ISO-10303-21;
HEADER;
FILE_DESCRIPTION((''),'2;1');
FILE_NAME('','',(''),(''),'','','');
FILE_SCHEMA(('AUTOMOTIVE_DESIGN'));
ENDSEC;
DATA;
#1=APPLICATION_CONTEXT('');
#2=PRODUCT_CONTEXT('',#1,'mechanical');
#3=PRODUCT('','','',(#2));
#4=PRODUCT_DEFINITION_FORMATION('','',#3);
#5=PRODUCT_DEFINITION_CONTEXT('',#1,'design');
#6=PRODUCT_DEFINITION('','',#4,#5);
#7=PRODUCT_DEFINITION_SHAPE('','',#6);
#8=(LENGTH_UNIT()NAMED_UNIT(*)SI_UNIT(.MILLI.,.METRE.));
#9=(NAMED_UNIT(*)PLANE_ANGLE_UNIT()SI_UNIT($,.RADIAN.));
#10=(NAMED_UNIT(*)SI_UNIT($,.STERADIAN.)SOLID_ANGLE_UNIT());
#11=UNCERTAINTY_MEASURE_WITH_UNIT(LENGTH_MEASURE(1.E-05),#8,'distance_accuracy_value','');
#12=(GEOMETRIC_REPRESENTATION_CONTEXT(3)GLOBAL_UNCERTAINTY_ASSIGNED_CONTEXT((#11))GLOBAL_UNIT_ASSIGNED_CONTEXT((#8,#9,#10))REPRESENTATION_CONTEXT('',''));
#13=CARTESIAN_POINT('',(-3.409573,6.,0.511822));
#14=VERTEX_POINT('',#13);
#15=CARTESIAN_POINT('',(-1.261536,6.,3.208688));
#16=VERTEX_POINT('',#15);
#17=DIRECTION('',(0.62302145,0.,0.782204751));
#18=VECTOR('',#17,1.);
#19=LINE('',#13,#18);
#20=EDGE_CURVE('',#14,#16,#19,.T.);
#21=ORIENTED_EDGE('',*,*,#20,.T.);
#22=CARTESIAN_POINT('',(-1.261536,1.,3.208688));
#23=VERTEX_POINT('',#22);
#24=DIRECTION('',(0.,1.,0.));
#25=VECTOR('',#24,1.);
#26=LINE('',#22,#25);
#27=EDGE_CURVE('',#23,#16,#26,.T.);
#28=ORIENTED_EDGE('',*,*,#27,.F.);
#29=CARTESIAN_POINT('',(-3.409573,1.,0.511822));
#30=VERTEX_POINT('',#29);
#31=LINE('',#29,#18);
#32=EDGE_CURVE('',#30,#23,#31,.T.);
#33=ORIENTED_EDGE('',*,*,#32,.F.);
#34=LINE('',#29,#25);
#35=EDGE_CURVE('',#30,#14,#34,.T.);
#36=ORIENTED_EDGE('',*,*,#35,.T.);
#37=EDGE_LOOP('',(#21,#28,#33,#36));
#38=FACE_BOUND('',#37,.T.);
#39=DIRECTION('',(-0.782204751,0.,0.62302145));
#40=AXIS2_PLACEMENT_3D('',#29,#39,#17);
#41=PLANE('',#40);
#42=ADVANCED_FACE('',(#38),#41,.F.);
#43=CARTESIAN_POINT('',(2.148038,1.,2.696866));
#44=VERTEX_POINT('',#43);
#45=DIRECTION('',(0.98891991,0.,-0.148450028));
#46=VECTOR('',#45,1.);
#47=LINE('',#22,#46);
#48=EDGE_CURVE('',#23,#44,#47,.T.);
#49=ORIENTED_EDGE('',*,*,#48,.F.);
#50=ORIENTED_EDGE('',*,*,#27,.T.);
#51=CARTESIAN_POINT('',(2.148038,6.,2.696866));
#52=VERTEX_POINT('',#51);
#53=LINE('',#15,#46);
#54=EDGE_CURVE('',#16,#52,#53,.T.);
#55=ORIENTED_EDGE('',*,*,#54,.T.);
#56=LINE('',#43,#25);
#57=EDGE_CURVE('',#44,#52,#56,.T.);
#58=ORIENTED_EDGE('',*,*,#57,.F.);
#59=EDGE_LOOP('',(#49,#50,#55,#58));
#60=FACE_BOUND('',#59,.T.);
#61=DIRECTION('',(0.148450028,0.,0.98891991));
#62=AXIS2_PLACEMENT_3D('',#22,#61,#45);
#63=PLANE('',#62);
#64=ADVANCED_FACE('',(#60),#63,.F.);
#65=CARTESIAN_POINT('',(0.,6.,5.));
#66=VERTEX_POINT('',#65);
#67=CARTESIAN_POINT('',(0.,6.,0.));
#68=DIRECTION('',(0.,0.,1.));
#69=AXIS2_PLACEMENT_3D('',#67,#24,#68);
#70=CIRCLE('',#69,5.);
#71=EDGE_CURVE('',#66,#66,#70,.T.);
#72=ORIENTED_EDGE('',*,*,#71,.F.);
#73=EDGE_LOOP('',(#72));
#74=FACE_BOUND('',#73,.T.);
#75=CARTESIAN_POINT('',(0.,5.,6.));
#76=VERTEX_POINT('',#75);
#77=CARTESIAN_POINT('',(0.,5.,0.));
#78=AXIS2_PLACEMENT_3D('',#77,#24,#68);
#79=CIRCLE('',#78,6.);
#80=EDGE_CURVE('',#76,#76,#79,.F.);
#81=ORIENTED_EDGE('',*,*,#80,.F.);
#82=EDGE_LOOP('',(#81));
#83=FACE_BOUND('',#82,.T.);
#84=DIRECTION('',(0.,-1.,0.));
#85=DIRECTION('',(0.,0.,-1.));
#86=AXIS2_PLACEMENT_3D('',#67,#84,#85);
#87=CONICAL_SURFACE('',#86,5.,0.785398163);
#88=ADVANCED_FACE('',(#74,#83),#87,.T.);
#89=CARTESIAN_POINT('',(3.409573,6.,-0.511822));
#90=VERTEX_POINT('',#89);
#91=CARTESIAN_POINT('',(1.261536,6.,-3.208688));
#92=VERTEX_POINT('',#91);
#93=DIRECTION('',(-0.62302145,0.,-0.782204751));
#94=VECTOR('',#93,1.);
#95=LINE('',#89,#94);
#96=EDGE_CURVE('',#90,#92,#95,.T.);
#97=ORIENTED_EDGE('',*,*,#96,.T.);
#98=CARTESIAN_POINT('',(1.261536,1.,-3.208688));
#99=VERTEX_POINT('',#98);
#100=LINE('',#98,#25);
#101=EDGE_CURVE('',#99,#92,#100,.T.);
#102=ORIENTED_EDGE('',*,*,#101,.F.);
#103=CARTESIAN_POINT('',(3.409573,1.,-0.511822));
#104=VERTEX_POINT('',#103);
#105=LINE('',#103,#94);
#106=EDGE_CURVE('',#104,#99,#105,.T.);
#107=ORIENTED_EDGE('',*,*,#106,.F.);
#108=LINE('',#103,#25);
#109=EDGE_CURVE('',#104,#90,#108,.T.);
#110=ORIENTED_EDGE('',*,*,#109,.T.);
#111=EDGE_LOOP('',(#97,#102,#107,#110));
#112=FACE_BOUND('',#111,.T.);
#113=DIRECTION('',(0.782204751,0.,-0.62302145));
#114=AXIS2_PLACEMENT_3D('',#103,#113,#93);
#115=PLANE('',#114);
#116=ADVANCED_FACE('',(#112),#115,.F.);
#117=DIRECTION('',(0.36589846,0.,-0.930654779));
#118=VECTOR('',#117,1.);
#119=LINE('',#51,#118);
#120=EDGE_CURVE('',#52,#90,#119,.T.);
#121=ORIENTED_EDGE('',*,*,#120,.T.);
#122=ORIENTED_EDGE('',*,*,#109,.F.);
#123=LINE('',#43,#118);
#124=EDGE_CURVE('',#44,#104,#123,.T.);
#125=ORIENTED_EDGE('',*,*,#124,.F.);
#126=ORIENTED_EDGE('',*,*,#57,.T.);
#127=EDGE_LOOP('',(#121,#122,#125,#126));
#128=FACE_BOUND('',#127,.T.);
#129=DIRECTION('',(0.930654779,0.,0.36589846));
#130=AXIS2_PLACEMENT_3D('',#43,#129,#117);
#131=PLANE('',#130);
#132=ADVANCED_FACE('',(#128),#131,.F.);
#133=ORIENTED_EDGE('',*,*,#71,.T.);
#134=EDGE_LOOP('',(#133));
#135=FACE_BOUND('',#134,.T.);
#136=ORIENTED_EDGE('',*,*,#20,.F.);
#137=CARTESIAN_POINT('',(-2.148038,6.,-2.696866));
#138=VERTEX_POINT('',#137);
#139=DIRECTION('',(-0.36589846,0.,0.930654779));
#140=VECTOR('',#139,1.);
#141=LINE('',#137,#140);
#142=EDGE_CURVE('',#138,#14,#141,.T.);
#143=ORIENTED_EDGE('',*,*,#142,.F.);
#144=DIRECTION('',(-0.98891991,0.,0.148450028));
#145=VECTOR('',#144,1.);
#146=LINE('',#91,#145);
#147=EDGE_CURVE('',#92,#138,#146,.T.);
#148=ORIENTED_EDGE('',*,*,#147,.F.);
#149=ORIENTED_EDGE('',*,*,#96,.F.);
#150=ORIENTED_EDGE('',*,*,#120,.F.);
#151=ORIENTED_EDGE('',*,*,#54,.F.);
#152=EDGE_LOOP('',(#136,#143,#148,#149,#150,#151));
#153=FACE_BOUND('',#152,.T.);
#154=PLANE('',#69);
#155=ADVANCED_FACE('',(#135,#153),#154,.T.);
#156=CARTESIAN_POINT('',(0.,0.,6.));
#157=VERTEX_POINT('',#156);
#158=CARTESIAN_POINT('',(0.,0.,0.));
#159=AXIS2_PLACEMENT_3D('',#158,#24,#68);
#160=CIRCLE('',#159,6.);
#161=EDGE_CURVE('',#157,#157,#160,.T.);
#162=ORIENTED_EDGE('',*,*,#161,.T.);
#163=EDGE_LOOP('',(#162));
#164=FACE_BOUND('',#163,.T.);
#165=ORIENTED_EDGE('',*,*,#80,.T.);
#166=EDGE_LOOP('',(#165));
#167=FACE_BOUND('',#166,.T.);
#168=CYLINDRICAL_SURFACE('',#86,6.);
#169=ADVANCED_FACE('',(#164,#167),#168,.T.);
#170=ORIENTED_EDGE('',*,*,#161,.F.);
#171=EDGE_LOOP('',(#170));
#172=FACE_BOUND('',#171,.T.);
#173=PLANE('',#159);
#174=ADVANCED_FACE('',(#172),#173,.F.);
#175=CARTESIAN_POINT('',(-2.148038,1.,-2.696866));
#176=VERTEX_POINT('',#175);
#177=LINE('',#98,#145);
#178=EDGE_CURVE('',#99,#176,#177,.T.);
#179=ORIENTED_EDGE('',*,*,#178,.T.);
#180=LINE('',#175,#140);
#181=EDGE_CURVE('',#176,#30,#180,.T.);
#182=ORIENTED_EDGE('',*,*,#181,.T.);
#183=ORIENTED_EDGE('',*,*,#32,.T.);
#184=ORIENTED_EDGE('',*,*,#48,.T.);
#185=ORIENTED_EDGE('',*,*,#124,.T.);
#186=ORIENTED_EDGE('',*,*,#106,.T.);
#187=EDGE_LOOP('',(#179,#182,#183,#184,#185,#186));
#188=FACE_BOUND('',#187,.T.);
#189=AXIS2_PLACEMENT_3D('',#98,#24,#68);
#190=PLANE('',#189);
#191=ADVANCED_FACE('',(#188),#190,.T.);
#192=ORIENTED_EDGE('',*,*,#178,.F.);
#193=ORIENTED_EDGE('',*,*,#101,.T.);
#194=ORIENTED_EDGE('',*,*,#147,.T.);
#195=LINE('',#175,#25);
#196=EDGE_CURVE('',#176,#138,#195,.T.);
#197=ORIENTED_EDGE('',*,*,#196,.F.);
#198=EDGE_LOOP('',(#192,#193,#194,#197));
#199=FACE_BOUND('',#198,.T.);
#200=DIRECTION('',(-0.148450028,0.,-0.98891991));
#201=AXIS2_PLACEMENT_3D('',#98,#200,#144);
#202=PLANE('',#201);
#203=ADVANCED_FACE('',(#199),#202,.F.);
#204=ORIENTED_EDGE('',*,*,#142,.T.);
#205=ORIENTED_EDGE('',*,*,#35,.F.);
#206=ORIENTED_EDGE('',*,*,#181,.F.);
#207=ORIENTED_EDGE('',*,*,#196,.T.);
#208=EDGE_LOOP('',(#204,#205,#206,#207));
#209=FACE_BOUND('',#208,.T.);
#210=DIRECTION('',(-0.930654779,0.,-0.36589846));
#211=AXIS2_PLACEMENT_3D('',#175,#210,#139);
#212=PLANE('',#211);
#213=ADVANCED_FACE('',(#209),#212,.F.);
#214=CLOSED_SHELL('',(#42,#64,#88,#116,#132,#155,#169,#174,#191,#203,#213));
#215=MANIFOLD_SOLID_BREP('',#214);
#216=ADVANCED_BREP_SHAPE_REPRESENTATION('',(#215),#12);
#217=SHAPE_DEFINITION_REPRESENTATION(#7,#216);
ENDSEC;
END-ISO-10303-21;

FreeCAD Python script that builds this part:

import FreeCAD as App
import Part
import Sketcher

V = App.Vector
Q = App.Units.Quantity


def edges_at(feature, points):
    """Names of the edges that pass closest to the given points."""
    edges = feature.Shape.Edges
    near = lambda p: min(range(len(edges)), key=lambda i: edges[i].distToShape(Part.Vertex(*p))[0])
    return sorted({f"Edge{near(p) + 1}" for p in points})

doc = App.newDocument("Part")
params = doc.addObject("Spreadsheet::Sheet", "Params")
for row, (alias, value) in enumerate([
    ("sketch1_diameter", "12 mm"),
    ("pad1_length", "6 mm"),
    ("pocket1_length", "5 mm"),
    ("chamfer_size", "1 mm"),
], start=1):
    params.set(f"A{row}", alias)
    params.set(f"B{row}", "=" + value)
    params.setAlias(f"B{row}", alias)

body = doc.addObject("PartDesign::Body", "Body")

sketch1 = doc.addObject("Sketcher::SketchObject", "Sketch")
body.addObject(sketch1)
sketch1.AttachmentSupport = (doc.XZ_Plane, [""])
sketch1.MapMode = "FlatFace"
sketch1.addGeometry(Part.Circle(V(0, 0, 0), V(0, 0, 1), 6), False)
sketch1.addConstraint([
    Sketcher.Constraint("Coincident", 0, 3, -1, 1),
    Sketcher.Constraint("Diameter", 0, Q("12 mm")),
])
sketch1.setExpression("Constraints[1]", "Params.sketch1_diameter")
pad1 = doc.addObject("PartDesign::Pad", "Pad")
body.addObject(pad1)
pad1.Profile = sketch1
pad1.setExpression("Length", "Params.pad1_length")
pad1.Reversed = True

sketch2 = doc.addObject("Sketcher::SketchObject", "Sketch001")
body.addObject(sketch2)
sketch2.AttachmentSupport = (doc.XZ_Plane, [""])
sketch2.MapMode = "FlatFace"
sketch2.AttachmentOffset = App.Placement(V(0, 0, -6), App.Rotation())
sketch2.addGeometry([
    Part.LineSegment(V(1.3, -3.2, 0), V(-2.1, -2.7, 0)),
    Part.LineSegment(V(-2.1, -2.7, 0), V(-3.4, 0.5, 0)),
    Part.LineSegment(V(-3.4, 0.5, 0), V(-1.3, 3.2, 0)),
    Part.LineSegment(V(-1.3, 3.2, 0), V(2.1, 2.7, 0)),
    Part.LineSegment(V(2.1, 2.7, 0), V(3.4, -0.5, 0)),
    Part.LineSegment(V(3.4, -0.5, 0), V(1.3, -3.2, 0)),
], False)
sketch2.addConstraint([
    Sketcher.Constraint("Coincident", 0, 2, 1, 1),
    Sketcher.Constraint("Coincident", 1, 2, 2, 1),
    Sketcher.Constraint("Coincident", 2, 2, 3, 1),
    Sketcher.Constraint("Coincident", 3, 2, 4, 1),
    Sketcher.Constraint("Coincident", 4, 2, 5, 1),
    Sketcher.Constraint("Coincident", 5, 2, 0, 1),
    Sketcher.Constraint("Symmetric", 0, 2, 3, 2, -1, 1),
    Sketcher.Constraint("Symmetric", 1, 2, 4, 2, -1, 1),
    Sketcher.Constraint("Symmetric", 2, 2, 5, 2, -1, 1),
    Sketcher.Constraint("Equal", 0, 1),
    Sketcher.Constraint("Equal", 1, 2),
    Sketcher.Constraint("DistanceY", -1, 1, 2, 2, Q("3.208688 mm")),
    Sketcher.Constraint("DistanceY", 0, 2, 1, 2, Q("3.208688 mm")),
    Sketcher.Constraint("DistanceX", 1, 2, 3, 2, Q("5.557611 mm")),
    Sketcher.Constraint("DistanceY", 0, 2, 3, 2, Q("5.393732 mm")),
])
pocket1 = doc.addObject("PartDesign::Pocket", "Pocket")
body.addObject(pocket1)
pocket1.Profile = sketch2
pocket1.setExpression("Length", "Params.pocket1_length")
pocket1.Reversed = True
doc.recompute()

chamfer = doc.addObject("PartDesign::Chamfer", "Chamfer")
body.addObject(chamfer)
chamfer.Base = (pocket1, edges_at(pocket1, [(0, 6, -6)]))
chamfer.setExpression("Size", "Params.chamfer_size")

doc.recompute()
